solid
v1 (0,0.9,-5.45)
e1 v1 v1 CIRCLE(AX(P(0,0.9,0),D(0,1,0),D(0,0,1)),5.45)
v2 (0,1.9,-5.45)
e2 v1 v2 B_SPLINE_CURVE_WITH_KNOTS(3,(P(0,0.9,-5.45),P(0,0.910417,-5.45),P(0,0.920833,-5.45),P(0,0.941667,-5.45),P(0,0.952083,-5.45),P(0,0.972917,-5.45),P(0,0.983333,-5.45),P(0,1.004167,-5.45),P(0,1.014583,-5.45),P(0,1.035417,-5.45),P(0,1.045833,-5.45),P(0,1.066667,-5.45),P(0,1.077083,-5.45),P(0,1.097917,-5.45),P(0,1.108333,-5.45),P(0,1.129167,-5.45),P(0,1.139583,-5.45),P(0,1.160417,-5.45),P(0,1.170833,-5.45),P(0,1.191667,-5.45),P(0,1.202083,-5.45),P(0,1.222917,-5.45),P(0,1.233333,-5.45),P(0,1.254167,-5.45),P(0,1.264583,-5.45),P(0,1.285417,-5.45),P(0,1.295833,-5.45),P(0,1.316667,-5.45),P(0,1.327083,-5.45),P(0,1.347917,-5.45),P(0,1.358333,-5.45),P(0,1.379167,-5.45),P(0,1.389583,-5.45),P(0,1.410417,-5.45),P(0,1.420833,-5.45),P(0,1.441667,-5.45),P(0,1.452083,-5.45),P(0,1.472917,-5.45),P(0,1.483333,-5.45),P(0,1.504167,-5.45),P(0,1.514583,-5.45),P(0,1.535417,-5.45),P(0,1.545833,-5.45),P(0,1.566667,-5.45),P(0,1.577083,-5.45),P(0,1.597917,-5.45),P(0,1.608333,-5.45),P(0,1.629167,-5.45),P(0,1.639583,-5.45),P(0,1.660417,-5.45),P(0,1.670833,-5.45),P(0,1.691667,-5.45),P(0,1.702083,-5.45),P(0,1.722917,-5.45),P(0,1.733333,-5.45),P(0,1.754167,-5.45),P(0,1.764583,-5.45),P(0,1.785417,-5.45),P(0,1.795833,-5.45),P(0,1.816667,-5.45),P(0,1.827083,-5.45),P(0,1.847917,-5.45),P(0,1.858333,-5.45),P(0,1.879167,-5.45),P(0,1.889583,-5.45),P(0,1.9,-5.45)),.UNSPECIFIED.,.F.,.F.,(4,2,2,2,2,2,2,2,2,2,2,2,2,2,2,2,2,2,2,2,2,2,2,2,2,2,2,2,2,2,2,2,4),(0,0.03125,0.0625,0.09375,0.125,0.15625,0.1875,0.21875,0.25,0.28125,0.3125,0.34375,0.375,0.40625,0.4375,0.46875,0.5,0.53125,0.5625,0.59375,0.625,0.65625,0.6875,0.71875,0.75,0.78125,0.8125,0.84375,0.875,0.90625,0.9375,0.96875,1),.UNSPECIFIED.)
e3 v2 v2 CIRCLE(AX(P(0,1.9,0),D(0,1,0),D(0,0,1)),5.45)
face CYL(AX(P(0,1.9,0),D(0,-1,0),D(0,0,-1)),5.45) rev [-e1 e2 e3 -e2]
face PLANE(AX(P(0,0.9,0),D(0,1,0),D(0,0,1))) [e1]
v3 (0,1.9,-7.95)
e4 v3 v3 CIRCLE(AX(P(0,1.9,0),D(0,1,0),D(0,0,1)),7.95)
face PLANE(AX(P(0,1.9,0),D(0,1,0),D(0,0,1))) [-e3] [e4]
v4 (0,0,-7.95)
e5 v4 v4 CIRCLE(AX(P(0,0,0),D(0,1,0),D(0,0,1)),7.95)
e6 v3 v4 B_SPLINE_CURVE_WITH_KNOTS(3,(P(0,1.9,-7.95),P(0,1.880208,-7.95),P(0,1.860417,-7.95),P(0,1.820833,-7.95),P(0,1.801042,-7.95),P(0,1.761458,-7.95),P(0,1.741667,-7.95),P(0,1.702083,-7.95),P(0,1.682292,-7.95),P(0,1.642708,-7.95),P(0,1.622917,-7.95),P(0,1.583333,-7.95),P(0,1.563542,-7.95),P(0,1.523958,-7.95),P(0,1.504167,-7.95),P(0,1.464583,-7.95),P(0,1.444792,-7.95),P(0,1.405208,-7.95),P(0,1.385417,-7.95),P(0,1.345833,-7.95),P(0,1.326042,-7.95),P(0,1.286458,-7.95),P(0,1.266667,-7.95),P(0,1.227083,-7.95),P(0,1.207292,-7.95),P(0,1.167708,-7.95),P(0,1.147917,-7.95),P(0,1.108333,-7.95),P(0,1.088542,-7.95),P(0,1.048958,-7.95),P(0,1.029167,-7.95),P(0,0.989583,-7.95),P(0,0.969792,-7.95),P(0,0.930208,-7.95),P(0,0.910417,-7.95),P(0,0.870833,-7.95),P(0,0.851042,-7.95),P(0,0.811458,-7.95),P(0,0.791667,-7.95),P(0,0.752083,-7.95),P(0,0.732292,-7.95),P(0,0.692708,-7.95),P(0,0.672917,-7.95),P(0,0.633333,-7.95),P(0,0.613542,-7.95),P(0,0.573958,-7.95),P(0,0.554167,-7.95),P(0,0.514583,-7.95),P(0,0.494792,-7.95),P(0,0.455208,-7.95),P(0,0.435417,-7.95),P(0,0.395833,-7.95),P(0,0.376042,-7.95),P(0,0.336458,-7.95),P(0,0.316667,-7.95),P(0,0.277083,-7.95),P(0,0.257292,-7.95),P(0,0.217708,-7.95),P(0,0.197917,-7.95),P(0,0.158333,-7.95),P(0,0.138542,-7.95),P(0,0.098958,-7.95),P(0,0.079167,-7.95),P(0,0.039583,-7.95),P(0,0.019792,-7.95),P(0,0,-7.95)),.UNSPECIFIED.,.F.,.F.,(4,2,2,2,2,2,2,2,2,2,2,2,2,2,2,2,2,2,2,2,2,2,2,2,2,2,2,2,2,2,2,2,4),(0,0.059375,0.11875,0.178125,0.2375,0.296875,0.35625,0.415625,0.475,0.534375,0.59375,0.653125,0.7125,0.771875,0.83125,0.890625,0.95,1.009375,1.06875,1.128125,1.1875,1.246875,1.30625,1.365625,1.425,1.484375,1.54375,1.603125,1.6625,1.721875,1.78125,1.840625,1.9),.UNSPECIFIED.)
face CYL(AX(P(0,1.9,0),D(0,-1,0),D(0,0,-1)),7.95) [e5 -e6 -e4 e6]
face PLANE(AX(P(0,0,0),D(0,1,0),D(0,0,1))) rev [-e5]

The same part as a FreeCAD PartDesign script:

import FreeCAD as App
import Part
import Sketcher

doc = App.newDocument("Part")
body = doc.addObject("PartDesign::Body", "Body")

sketch1 = body.newObject("Sketcher::SketchObject", "Sketch")
sketch1.AttachmentSupport = (doc.getObject("XZ_Plane"), [""])
sketch1.MapMode = "FlatFace"
sketch1.addGeometry([
    Part.Circle(App.Vector(0, 0, 0), App.Vector(0, 0, 1), 8),
    Part.Circle(App.Vector(0, 0, 0), App.Vector(0, 0, 1), 5),
], False)
sketch1.addConstraint([
    Sketcher.Constraint("Coincident", 0, 3, -1, 1),
    Sketcher.Constraint("Coincident", 1, 3, -1, 1),
    Sketcher.Constraint("Diameter", 0, 15.9),
    Sketcher.Constraint("Diameter", 1, 10.9),
])
pad1 = body.newObject("PartDesign::Pad", "Pad")
pad1.Profile = sketch1
pad1.Length = 1.9
pad1.Reversed = True

sketch2 = body.newObject("Sketcher::SketchObject", "Sketch001")
sketch2.AttachmentSupport = (doc.getObject("XZ_Plane"), [""])
sketch2.MapMode = "FlatFace"
sketch2.addGeometry(Part.Circle(App.Vector(0, 0, 0), App.Vector(0, 0, 1), 5), False)
sketch2.addConstraint([
    Sketcher.Constraint("Coincident", 0, 3, -1, 1),
    Sketcher.Constraint("Diameter", 0, 10.9),
])
pad2 = body.newObject("PartDesign::Pad", "Pad001")
pad2.Profile = sketch2
pad2.Length = 0.9
pad2.Reversed = True

doc.recompute()
